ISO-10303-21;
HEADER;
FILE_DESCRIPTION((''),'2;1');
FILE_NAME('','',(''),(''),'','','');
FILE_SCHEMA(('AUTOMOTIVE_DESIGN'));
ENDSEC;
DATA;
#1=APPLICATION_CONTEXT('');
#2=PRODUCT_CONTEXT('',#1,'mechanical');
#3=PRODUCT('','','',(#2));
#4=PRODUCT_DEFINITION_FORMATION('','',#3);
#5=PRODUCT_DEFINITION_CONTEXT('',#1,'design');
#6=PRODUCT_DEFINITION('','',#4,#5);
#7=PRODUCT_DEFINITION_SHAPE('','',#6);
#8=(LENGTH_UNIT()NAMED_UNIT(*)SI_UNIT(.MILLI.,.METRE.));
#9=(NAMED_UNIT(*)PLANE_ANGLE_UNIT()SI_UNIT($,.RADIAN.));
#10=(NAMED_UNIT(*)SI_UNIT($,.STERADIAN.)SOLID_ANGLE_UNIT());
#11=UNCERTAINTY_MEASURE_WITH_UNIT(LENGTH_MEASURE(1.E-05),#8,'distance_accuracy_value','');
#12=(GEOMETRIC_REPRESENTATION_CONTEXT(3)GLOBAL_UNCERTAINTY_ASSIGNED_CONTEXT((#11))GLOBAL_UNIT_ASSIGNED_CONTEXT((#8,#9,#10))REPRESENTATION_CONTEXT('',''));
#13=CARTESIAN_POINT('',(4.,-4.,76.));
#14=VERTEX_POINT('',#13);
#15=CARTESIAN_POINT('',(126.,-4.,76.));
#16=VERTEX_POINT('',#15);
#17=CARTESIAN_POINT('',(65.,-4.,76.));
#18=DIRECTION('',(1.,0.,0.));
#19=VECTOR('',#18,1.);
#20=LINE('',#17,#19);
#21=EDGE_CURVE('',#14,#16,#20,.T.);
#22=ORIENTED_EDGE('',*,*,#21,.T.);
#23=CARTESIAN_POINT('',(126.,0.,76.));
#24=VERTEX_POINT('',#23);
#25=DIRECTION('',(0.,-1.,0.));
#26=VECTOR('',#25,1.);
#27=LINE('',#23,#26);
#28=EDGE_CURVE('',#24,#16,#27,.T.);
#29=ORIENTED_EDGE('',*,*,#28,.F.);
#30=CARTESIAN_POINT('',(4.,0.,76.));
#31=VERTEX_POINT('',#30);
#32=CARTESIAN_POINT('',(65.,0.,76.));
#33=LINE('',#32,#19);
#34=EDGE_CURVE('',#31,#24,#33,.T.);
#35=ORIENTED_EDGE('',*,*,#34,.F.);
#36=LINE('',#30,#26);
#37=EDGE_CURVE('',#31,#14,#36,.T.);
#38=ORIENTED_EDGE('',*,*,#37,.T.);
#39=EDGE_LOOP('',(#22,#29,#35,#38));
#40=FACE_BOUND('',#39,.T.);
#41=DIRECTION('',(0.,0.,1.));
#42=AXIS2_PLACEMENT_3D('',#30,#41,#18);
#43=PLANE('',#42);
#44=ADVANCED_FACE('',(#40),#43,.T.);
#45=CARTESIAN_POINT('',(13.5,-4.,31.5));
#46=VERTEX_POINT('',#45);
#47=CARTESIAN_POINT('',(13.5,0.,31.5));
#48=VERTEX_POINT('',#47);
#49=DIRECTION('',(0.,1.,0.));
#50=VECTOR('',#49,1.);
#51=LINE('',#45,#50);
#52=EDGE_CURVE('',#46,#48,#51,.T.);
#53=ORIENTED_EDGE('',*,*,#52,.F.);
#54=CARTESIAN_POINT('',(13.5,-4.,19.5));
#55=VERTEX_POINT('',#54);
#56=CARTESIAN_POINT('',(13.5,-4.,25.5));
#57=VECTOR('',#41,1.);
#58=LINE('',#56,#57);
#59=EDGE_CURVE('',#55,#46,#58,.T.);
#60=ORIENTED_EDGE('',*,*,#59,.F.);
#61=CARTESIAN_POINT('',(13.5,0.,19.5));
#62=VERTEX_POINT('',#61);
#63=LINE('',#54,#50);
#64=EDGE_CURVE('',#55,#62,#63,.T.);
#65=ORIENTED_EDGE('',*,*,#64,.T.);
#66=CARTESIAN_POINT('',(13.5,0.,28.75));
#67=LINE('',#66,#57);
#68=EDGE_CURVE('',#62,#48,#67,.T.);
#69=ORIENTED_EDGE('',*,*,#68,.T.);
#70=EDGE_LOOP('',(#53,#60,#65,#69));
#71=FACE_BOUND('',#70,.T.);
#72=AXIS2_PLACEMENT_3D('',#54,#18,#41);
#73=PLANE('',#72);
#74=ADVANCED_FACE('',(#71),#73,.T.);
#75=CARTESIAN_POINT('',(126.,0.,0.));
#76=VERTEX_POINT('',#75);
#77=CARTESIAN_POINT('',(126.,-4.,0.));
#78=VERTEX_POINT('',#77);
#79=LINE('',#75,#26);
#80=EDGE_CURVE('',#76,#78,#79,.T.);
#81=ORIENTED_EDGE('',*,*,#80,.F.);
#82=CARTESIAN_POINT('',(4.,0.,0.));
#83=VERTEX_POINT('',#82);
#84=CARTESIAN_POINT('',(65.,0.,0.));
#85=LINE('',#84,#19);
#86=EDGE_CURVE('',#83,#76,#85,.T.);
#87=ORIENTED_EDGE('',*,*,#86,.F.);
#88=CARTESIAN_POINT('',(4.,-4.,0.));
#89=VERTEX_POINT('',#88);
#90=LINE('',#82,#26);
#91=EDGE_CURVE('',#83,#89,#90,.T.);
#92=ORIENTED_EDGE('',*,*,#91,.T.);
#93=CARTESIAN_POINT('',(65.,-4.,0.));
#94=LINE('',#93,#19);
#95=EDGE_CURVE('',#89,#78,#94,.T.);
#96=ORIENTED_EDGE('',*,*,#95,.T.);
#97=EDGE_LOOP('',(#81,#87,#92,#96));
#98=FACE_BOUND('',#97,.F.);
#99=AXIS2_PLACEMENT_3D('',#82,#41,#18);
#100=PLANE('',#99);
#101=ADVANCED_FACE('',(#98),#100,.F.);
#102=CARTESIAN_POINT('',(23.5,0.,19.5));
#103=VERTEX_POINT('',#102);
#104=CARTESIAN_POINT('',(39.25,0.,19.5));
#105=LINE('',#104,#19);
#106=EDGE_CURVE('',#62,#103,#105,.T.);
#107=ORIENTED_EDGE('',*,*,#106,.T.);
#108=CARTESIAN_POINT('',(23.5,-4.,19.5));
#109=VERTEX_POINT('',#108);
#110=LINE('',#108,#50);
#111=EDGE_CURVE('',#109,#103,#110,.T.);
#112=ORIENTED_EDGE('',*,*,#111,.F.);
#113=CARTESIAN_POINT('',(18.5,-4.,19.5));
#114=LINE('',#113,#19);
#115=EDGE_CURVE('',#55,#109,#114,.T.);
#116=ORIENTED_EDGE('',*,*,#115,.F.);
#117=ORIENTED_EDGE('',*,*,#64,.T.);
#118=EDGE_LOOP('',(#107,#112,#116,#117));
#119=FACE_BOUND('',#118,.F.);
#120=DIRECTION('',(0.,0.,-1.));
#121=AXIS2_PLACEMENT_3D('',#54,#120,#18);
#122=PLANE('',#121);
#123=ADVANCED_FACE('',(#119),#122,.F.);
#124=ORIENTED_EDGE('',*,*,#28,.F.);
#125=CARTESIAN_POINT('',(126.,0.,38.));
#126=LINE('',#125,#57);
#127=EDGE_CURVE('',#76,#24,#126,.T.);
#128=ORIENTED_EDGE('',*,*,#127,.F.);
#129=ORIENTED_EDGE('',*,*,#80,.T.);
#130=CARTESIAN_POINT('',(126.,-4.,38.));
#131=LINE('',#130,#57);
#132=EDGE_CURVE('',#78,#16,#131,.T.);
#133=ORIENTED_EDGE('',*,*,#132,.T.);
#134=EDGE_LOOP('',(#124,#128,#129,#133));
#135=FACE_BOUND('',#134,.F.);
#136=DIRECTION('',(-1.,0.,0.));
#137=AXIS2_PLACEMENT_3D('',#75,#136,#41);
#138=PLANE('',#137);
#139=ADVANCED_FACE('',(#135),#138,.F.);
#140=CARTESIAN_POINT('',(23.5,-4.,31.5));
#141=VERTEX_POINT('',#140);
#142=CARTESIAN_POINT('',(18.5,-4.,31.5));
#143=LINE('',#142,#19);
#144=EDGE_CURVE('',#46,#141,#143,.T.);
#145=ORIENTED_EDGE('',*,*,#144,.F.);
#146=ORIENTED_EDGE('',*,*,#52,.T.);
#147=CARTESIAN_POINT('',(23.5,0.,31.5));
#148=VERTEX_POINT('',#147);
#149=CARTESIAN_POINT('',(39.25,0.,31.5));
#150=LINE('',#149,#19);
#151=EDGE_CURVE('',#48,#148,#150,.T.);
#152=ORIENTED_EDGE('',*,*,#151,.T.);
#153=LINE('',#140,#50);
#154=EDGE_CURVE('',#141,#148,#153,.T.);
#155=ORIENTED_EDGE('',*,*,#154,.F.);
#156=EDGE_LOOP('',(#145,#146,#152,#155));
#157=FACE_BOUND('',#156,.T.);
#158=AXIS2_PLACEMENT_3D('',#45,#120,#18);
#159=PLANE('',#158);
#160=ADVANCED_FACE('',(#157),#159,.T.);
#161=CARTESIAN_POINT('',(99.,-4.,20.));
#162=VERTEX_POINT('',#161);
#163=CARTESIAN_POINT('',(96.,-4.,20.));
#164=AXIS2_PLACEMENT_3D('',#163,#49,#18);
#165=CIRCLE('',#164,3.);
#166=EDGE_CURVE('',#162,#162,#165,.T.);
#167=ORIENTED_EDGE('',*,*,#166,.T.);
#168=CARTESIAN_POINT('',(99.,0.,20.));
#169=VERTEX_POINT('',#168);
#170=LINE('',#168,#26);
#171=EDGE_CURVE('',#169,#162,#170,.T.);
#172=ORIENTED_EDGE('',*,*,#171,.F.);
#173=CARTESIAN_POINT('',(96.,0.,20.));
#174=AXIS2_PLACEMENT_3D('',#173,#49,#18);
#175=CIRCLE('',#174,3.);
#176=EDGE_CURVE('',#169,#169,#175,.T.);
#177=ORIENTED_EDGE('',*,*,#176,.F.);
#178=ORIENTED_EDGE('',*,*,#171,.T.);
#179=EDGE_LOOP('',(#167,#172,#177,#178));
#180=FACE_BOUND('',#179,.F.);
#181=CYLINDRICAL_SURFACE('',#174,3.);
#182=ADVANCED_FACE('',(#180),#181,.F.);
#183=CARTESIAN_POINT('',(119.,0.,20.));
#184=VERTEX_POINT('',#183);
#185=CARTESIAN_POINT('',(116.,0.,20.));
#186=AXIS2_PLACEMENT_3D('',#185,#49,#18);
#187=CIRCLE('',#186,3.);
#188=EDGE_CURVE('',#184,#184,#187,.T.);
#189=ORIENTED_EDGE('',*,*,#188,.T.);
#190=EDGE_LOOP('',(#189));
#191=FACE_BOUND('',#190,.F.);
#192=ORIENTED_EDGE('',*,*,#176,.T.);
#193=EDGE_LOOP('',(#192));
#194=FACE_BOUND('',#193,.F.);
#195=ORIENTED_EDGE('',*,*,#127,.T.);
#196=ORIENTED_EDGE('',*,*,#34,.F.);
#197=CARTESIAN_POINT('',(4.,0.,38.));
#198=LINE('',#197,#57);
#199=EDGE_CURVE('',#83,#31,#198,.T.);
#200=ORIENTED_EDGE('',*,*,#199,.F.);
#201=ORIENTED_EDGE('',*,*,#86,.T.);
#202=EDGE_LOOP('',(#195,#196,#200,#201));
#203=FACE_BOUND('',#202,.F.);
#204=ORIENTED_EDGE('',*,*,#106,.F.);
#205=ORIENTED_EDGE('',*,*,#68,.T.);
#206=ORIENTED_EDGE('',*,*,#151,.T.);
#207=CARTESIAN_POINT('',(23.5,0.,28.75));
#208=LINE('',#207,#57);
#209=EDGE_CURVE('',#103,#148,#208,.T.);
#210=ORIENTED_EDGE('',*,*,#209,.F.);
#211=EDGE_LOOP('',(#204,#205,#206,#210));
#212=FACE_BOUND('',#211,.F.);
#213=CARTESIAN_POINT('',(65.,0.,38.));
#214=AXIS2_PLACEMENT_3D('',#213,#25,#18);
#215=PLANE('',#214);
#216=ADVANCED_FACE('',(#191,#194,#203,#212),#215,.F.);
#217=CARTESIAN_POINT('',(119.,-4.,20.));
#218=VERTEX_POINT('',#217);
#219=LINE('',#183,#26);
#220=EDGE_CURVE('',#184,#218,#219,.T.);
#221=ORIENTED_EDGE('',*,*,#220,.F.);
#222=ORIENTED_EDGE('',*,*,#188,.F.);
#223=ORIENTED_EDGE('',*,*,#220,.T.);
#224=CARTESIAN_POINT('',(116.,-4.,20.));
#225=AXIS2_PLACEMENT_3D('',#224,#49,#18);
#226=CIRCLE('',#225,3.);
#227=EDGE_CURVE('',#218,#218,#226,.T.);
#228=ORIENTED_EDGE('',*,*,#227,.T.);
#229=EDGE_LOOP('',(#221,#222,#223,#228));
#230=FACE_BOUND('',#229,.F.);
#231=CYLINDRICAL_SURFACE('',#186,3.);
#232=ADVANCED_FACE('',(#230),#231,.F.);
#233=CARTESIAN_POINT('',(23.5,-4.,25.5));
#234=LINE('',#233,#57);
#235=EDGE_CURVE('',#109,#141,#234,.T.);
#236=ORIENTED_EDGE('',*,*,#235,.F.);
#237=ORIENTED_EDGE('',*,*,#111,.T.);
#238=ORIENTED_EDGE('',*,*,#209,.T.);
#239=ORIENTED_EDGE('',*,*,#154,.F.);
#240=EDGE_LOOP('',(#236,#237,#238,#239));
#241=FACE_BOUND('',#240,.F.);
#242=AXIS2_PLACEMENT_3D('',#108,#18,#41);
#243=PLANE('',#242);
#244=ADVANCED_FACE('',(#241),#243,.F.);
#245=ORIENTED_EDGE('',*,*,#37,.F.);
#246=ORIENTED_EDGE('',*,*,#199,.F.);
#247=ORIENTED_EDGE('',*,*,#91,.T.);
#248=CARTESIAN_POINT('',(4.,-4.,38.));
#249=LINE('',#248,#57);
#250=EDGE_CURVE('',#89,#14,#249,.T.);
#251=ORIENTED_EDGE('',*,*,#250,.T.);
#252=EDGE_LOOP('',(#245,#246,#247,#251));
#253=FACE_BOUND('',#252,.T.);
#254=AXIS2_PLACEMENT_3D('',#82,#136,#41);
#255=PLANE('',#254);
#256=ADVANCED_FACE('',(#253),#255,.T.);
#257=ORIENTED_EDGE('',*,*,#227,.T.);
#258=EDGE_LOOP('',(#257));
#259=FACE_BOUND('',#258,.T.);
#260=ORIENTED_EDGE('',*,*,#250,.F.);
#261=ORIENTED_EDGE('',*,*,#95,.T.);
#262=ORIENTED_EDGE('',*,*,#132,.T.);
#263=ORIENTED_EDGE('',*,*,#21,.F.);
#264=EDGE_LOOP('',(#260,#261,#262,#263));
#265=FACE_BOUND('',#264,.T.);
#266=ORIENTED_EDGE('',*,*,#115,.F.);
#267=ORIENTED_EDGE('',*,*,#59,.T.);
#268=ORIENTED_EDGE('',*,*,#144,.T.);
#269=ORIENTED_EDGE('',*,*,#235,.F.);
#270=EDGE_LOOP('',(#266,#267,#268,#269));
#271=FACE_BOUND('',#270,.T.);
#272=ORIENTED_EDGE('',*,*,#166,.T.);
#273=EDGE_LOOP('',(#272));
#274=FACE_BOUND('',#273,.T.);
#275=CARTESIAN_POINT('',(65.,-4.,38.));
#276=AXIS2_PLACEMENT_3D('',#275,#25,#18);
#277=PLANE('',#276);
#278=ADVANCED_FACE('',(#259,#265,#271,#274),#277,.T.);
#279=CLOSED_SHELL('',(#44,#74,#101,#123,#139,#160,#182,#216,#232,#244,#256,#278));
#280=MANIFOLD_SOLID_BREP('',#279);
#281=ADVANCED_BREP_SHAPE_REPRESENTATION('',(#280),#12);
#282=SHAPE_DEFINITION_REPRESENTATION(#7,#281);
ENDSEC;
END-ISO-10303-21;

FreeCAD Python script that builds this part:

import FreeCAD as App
import Part
import Sketcher
from FreeCAD import Vector
Q = App.Units.Quantity


def add_polygon(sketch, points):
    """Adds a closed chain of lines whose ends are joined by coincident constraints."""
    first, n = sketch.GeometryCount, len(points)
    for a, b in zip(points, points[1:] + points[:1]):
        sketch.addGeometry(Part.LineSegment(App.Vector(*a, 0), App.Vector(*b, 0)), False)
    for i in range(n):
        sketch.addConstraint(Sketcher.Constraint("Coincident", first + i, 2, first + (i + 1) % n, 1))

doc = App.newDocument("Part")
body = doc.addObject("PartDesign::Body", "Body")

sketch1 = body.newObject("Sketcher::SketchObject", "Sketch")
sketch1.AttachmentSupport = (doc.getObject("XZ_Plane"), [""])
sketch1.MapMode = "FlatFace"
add_polygon(sketch1, [(4, 76), (4, 0), (126, 0), (126, 76)])
sketch1.addConstraint([
    Sketcher.Constraint("Vertical", 0),
    Sketcher.Constraint("Horizontal", 1),
    Sketcher.Constraint("Vertical", 2),
    Sketcher.Constraint("Horizontal", 3),
    Sketcher.Constraint("PointOnObject", 0, 2, -1),
    Sketcher.Constraint("DistanceX", 1, 1, 1, 2, Q("122 mm")),
    Sketcher.Constraint("DistanceY", 0, 2, 0, 1, Q("76 mm")),
    Sketcher.Constraint("DistanceX", -1, 1, 0, 2, Q("4 mm")),
])
pad1 = body.newObject("PartDesign::Pad", "Pad")
pad1.Profile = sketch1
pad1.Length = 4

sketch2 = body.newObject("Sketcher::SketchObject", "Sketch001")
sketch2.AttachmentSupport = (doc.getObject("XZ_Plane"), [""])
sketch2.MapMode = "FlatFace"
sketch2.AttachmentOffset = App.Placement(Vector(0, 0, 4), App.Rotation())
add_polygon(sketch2, [(13.5, 31.5), (13.5, 19.5), (23.5, 19.5), (23.5, 31.5)])
sketch2.addConstraint([
    Sketcher.Constraint("Vertical", 0),
    Sketcher.Constraint("Horizontal", 1),
    Sketcher.Constraint("Vertical", 2),
    Sketcher.Constraint("Horizontal", 3),
    Sketcher.Constraint("DistanceX", 1, 1, 1, 2, Q("10 mm")),
    Sketcher.Constraint("DistanceY", 0, 2, 0, 1, Q("12 mm")),
    Sketcher.Constraint("DistanceX", -1, 1, 0, 2, Q("13.5 mm")),
    Sketcher.Constraint("DistanceY", -1, 1, 0, 2, Q("19.5 mm")),
])
pocket1 = body.newObject("PartDesign::Pocket", "Pocket")
pocket1.Profile = sketch2
pocket1.Type = "ThroughAll"

sketch3 = body.newObject("Sketcher::SketchObject", "Sketch002")
sketch3.AttachmentSupport = (doc.getObject("XZ_Plane"), [""])
sketch3.MapMode = "FlatFace"
sketch3.addGeometry([
    Part.Circle(Vector(116, 20, 0), Vector(0, 0, 1), 3),
    Part.Circle(Vector(96, 20, 0), Vector(0, 0, 1), 3),
], False)
sketch3.addConstraint([
    Sketcher.Constraint("Equal", 0, 1),
    Sketcher.Constraint("Horizontal", 0, 3, 1, 3),
    Sketcher.Constraint("Diameter", 0, Q("6 mm")),
    Sketcher.Constraint("DistanceX", -1, 1, 0, 3, Q("116 mm")),
    Sketcher.Constraint("DistanceY", -1, 1, 0, 3, Q("20 mm")),
    Sketcher.Constraint("DistanceX", -1, 1, 1, 3, Q("96 mm")),
])
pocket2 = body.newObject("PartDesign::Pocket", "Pocket001")
pocket2.Profile = sketch3
pocket2.Type = "ThroughAll"
pocket2.Reversed = True

doc.recompute()
